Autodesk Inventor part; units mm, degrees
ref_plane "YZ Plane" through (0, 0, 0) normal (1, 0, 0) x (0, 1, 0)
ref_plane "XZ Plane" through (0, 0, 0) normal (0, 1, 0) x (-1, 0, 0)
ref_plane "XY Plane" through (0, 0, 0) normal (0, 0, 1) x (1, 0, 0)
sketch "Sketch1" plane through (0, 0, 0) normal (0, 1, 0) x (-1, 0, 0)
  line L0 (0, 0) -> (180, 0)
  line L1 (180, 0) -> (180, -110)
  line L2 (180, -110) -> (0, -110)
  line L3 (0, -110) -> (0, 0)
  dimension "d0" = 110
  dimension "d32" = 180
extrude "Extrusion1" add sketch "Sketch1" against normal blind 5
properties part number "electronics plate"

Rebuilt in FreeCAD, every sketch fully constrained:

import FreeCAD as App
import Part
import Sketcher
from FreeCAD import Vector


def add_polygon(sketch, points):
    """Adds a closed chain of lines whose ends are joined by coincident constraints."""
    first, n = sketch.GeometryCount, len(points)
    for a, b in zip(points, points[1:] + points[:1]):
        sketch.addGeometry(Part.LineSegment(App.Vector(*a, 0), App.Vector(*b, 0)), False)
    for i in range(n):
        sketch.addConstraint(Sketcher.Constraint("Coincident", first + i, 2, first + (i + 1) % n, 1))

doc = App.newDocument("Part")
body = doc.addObject("PartDesign::Body", "Body")

# Sketch on XZ plane
sketch1 = body.newObject("Sketcher::SketchObject", "Sketch")
sketch1.AttachmentSupport = (doc.getObject("XZ_Plane"), [""])
sketch1.MapMode = "FlatFace"
add_polygon(sketch1, [(-180, 0), (0, 0), (0, -110), (-180, -110)])  # lines 0-3
sketch1.addConstraint(Sketcher.Constraint("Horizontal", 0))
sketch1.addConstraint(Sketcher.Constraint("Vertical", 1))
sketch1.addConstraint(Sketcher.Constraint("Horizontal", 2))
sketch1.addConstraint(Sketcher.Constraint("Vertical", 3))
sketch1.addConstraint(Sketcher.Constraint("Coincident", 0, 2, -1, 1))
sketch1.addConstraint(Sketcher.Constraint("DistanceX", 0, 1, 0, 2, 180.0))
sketch1.addConstraint(Sketcher.Constraint("DistanceY", 1, 2, 1, 1, 110.0))
pad1 = body.newObject("PartDesign::Pad", "Pad")
pad1.Profile = sketch1
pad1.Length = 5

doc.recompute()
